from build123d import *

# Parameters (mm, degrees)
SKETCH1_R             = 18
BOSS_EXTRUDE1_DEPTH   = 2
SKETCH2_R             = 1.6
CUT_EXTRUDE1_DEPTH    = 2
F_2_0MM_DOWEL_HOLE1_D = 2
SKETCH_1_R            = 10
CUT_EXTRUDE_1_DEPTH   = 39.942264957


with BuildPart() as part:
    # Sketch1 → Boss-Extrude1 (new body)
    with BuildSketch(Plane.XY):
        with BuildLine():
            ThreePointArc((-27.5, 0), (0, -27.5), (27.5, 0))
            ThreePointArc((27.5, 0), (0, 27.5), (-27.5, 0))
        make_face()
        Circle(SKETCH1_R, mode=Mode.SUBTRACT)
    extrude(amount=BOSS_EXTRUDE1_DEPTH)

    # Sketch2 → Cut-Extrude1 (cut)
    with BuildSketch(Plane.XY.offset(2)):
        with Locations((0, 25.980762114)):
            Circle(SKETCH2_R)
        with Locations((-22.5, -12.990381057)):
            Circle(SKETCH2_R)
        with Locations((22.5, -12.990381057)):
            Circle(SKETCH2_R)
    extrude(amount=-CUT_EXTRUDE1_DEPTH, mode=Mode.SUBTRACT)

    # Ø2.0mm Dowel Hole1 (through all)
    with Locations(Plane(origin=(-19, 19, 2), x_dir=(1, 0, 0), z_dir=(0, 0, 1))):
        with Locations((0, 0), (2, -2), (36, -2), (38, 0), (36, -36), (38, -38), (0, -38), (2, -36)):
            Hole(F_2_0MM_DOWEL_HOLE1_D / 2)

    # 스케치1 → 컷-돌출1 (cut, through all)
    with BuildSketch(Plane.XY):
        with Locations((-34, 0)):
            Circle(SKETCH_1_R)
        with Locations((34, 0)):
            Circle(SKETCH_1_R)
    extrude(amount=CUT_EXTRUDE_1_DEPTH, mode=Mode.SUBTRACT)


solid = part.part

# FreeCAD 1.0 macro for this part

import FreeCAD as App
import Part
import Sketcher
Q = App.Units.Quantity

doc = App.newDocument("Part")
params = doc.addObject("Spreadsheet::Sheet", "Params")
for row, (alias, value) in enumerate([
    ("sketch1_diameter", "55 mm"),
    ("sketch1_diameter2", "36 mm"),
    ("pad1_length", "2 mm"),
    ("sketch2_diameter", "3.2 mm"),
    ("pocket1_length", "2 mm"),
    ("sketch3_diameter", "2 mm"),
    ("hole_diameter", "2 mm"),
    ("sketch4_diameter", "20 mm"),
], start=1):
    params.set(f"A{row}", alias)
    params.set(f"B{row}", "=" + value)
    params.setAlias(f"B{row}", alias)

body = doc.addObject("PartDesign::Body", "Body")

# Sketch on XY plane
sketch1 = doc.addObject("Sketcher::SketchObject", "Sketch")
body.addObject(sketch1)
sketch1.AttachmentSupport = (doc.XY_Plane, [""])
sketch1.MapMode = "FlatFace"
sketch1.addGeometry(Part.Circle(App.Vector(0, 0, 0), App.Vector(0, 0, 1), 27.5), False)
sketch1.addGeometry(Part.Circle(App.Vector(0, 0, 0), App.Vector(0, 0, 1), 18), False)
sketch1.addConstraint(Sketcher.Constraint("Coincident", 0, 3, -1, 1))
sketch1.addConstraint(Sketcher.Constraint("Coincident", 1, 3, -1, 1))
sketch1.addConstraint(Sketcher.Constraint("Diameter", 0, Q("55 mm")))
sketch1.addConstraint(Sketcher.Constraint("Diameter", 1, Q("36 mm")))
sketch1.setExpression("Constraints[2]", "Params.sketch1_diameter")
sketch1.setExpression("Constraints[3]", "Params.sketch1_diameter2")
pad1 = doc.addObject("PartDesign::Pad", "Pad")
body.addObject(pad1)
pad1.Profile = sketch1
pad1.setExpression("Length", "Params.pad1_length")

# Sketch on XY plane
sketch2 = doc.addObject("Sketcher::SketchObject", "Sketch001")
body.addObject(sketch2)
sketch2.AttachmentSupport = (doc.XY_Plane, [""])
sketch2.MapMode = "FlatFace"
sketch2.AttachmentOffset = App.Placement(App.Vector(0, 0, 2), App.Rotation())
sketch2.addGeometry(Part.Circle(App.Vector(0, 25.980762, 0), App.Vector(0, 0, 1), 1.6), False)
sketch2.addGeometry(Part.Circle(App.Vector(-22.5, -12.990381, 0), App.Vector(0, 0, 1), 1.6), False)
sketch2.addGeometry(Part.Circle(App.Vector(22.5, -12.990381, 0), App.Vector(0, 0, 1), 1.6), False)
sketch2.addConstraint(Sketcher.Constraint("Equal", 0, 1))
sketch2.addConstraint(Sketcher.Constraint("Equal", 1, 2))
sketch2.addConstraint(Sketcher.Constraint("Symmetric", 1, 3, 2, 3, -2))
sketch2.addConstraint(Sketcher.Constraint("PointOnObject", 0, 3, -2))
sketch2.addConstraint(Sketcher.Constraint("Diameter", 0, Q("3.2 mm")))
sketch2.addConstraint(Sketcher.Constraint("DistanceX", 1, 3, 2, 3, Q("45 mm")))
sketch2.addConstraint(Sketcher.Constraint("DistanceY", 1, 3, -1, 1, Q("12.990381 mm")))
sketch2.addConstraint(Sketcher.Constraint("DistanceY", -1, 1, 0, 3, Q("25.980762 mm")))
sketch2.setExpression("Constraints[4]", "Params.sketch2_diameter")
pocket1 = doc.addObject("PartDesign::Pocket", "Pocket")
body.addObject(pocket1)
pocket1.Profile = sketch2
pocket1.setExpression("Length", "Params.pocket1_length")

# Sketch on XY plane
sketch3 = doc.addObject("Sketcher::SketchObject", "Sketch002")
body.addObject(sketch3)
sketch3.AttachmentSupport = (doc.XY_Plane, [""])
sketch3.MapMode = "FlatFace"
sketch3.AttachmentOffset = App.Placement(App.Vector(0, 0, 2), App.Rotation())
sketch3.addGeometry(Part.Circle(App.Vector(-19, 19, 0), App.Vector(0, 0, 1), 1), False)
sketch3.addGeometry(Part.Circle(App.Vector(-17, 17, 0), App.Vector(0, 0, 1), 1), False)
sketch3.addGeometry(Part.Circle(App.Vector(17, 17, 0), App.Vector(0, 0, 1), 1), False)
sketch3.addGeometry(Part.Circle(App.Vector(19, 19, 0), App.Vector(0, 0, 1), 1), False)
sketch3.addGeometry(Part.Circle(App.Vector(17, -17, 0), App.Vector(0, 0, 1), 1), False)
sketch3.addGeometry(Part.Circle(App.Vector(19, -19, 0), App.Vector(0, 0, 1), 1), False)
sketch3.addGeometry(Part.Circle(App.Vector(-19, -19, 0), App.Vector(0, 0, 1), 1), False)
sketch3.addGeometry(Part.Circle(App.Vector(-17, -17, 0), App.Vector(0, 0, 1), 1), False)
sketch3.addConstraint(Sketcher.Constraint("Equal", 0, 1))
sketch3.addConstraint(Sketcher.Constraint("Equal", 1, 2))
sketch3.addConstraint(Sketcher.Constraint("Equal", 2, 3))
sketch3.addConstraint(Sketcher.Constraint("Equal", 3, 4))
sketch3.addConstraint(Sketcher.Constraint("Equal", 4, 5))
sketch3.addConstraint(Sketcher.Constraint("Equal", 5, 6))
sketch3.addConstraint(Sketcher.Constraint("Equal", 6, 7))
sketch3.addConstraint(Sketcher.Constraint("Symmetric", 1, 3, 4, 3, -1, 1))
sketch3.addConstraint(Sketcher.Constraint("Symmetric", 0, 3, 5, 3, -1, 1))
sketch3.addConstraint(Sketcher.Constraint("Symmetric", 3, 3, 6, 3, -1, 1))
sketch3.addConstraint(Sketcher.Constraint("Symmetric", 2, 3, 7, 3, -1, 1))
sketch3.addConstraint(Sketcher.Constraint("Symmetric", 1, 3, 2, 3, -2))
sketch3.addConstraint(Sketcher.Constraint("Symmetric", 0, 3, 3, 3, -2))
sketch3.addConstraint(Sketcher.Constraint("Diameter", 0, Q("2 mm")))
sketch3.addConstraint(Sketcher.Constraint("DistanceX", 0, 3, -1, 1, Q("19 mm")))
sketch3.addConstraint(Sketcher.Constraint("DistanceY", -1, 1, 0, 3, Q("19 mm")))
sketch3.addConstraint(Sketcher.Constraint("DistanceX", 1, 3, -1, 1, Q("17 mm")))
sketch3.addConstraint(Sketcher.Constraint("DistanceY", -1, 1, 1, 3, Q("17 mm")))
sketch3.setExpression("Constraints[13]", "Params.sketch3_diameter")
doc.recompute()
hole = doc.addObject("PartDesign::Hole", "Hole")
body.addObject(hole)
hole.Profile = sketch3
hole.ThreadType = "None"
hole.setExpression("Diameter", "Params.hole_diameter")
hole.DepthType = "ThroughAll"

# Sketch on XY plane
sketch4 = doc.addObject("Sketcher::SketchObject", "Sketch003")
body.addObject(sketch4)
sketch4.AttachmentSupport = (doc.XY_Plane, [""])
sketch4.MapMode = "FlatFace"
sketch4.addGeometry(Part.Circle(App.Vector(-34, 0, 0), App.Vector(0, 0, 1), 10), False)
sketch4.addGeometry(Part.Circle(App.Vector(34, 0, 0), App.Vector(0, 0, 1), 10), False)
sketch4.addConstraint(Sketcher.Constraint("Equal", 0, 1))
sketch4.addConstraint(Sketcher.Constraint("Symmetric", 0, 3, 1, 3, -1, 1))
sketch4.addConstraint(Sketcher.Constraint("PointOnObject", 0, 3, -1))
sketch4.addConstraint(Sketcher.Constraint("Diameter", 0, Q("20 mm")))
sketch4.addConstraint(Sketcher.Constraint("DistanceX", 0, 3, -1, 1, Q("34 mm")))
sketch4.setExpression("Constraints[3]", "Params.sketch4_diameter")
pocket2 = doc.addObject("PartDesign::Pocket", "Pocket001")
body.addObject(pocket2)
pocket2.Profile = sketch4
pocket2.Type = "ThroughAll"
pocket2.Reversed = True

doc.recompute()
